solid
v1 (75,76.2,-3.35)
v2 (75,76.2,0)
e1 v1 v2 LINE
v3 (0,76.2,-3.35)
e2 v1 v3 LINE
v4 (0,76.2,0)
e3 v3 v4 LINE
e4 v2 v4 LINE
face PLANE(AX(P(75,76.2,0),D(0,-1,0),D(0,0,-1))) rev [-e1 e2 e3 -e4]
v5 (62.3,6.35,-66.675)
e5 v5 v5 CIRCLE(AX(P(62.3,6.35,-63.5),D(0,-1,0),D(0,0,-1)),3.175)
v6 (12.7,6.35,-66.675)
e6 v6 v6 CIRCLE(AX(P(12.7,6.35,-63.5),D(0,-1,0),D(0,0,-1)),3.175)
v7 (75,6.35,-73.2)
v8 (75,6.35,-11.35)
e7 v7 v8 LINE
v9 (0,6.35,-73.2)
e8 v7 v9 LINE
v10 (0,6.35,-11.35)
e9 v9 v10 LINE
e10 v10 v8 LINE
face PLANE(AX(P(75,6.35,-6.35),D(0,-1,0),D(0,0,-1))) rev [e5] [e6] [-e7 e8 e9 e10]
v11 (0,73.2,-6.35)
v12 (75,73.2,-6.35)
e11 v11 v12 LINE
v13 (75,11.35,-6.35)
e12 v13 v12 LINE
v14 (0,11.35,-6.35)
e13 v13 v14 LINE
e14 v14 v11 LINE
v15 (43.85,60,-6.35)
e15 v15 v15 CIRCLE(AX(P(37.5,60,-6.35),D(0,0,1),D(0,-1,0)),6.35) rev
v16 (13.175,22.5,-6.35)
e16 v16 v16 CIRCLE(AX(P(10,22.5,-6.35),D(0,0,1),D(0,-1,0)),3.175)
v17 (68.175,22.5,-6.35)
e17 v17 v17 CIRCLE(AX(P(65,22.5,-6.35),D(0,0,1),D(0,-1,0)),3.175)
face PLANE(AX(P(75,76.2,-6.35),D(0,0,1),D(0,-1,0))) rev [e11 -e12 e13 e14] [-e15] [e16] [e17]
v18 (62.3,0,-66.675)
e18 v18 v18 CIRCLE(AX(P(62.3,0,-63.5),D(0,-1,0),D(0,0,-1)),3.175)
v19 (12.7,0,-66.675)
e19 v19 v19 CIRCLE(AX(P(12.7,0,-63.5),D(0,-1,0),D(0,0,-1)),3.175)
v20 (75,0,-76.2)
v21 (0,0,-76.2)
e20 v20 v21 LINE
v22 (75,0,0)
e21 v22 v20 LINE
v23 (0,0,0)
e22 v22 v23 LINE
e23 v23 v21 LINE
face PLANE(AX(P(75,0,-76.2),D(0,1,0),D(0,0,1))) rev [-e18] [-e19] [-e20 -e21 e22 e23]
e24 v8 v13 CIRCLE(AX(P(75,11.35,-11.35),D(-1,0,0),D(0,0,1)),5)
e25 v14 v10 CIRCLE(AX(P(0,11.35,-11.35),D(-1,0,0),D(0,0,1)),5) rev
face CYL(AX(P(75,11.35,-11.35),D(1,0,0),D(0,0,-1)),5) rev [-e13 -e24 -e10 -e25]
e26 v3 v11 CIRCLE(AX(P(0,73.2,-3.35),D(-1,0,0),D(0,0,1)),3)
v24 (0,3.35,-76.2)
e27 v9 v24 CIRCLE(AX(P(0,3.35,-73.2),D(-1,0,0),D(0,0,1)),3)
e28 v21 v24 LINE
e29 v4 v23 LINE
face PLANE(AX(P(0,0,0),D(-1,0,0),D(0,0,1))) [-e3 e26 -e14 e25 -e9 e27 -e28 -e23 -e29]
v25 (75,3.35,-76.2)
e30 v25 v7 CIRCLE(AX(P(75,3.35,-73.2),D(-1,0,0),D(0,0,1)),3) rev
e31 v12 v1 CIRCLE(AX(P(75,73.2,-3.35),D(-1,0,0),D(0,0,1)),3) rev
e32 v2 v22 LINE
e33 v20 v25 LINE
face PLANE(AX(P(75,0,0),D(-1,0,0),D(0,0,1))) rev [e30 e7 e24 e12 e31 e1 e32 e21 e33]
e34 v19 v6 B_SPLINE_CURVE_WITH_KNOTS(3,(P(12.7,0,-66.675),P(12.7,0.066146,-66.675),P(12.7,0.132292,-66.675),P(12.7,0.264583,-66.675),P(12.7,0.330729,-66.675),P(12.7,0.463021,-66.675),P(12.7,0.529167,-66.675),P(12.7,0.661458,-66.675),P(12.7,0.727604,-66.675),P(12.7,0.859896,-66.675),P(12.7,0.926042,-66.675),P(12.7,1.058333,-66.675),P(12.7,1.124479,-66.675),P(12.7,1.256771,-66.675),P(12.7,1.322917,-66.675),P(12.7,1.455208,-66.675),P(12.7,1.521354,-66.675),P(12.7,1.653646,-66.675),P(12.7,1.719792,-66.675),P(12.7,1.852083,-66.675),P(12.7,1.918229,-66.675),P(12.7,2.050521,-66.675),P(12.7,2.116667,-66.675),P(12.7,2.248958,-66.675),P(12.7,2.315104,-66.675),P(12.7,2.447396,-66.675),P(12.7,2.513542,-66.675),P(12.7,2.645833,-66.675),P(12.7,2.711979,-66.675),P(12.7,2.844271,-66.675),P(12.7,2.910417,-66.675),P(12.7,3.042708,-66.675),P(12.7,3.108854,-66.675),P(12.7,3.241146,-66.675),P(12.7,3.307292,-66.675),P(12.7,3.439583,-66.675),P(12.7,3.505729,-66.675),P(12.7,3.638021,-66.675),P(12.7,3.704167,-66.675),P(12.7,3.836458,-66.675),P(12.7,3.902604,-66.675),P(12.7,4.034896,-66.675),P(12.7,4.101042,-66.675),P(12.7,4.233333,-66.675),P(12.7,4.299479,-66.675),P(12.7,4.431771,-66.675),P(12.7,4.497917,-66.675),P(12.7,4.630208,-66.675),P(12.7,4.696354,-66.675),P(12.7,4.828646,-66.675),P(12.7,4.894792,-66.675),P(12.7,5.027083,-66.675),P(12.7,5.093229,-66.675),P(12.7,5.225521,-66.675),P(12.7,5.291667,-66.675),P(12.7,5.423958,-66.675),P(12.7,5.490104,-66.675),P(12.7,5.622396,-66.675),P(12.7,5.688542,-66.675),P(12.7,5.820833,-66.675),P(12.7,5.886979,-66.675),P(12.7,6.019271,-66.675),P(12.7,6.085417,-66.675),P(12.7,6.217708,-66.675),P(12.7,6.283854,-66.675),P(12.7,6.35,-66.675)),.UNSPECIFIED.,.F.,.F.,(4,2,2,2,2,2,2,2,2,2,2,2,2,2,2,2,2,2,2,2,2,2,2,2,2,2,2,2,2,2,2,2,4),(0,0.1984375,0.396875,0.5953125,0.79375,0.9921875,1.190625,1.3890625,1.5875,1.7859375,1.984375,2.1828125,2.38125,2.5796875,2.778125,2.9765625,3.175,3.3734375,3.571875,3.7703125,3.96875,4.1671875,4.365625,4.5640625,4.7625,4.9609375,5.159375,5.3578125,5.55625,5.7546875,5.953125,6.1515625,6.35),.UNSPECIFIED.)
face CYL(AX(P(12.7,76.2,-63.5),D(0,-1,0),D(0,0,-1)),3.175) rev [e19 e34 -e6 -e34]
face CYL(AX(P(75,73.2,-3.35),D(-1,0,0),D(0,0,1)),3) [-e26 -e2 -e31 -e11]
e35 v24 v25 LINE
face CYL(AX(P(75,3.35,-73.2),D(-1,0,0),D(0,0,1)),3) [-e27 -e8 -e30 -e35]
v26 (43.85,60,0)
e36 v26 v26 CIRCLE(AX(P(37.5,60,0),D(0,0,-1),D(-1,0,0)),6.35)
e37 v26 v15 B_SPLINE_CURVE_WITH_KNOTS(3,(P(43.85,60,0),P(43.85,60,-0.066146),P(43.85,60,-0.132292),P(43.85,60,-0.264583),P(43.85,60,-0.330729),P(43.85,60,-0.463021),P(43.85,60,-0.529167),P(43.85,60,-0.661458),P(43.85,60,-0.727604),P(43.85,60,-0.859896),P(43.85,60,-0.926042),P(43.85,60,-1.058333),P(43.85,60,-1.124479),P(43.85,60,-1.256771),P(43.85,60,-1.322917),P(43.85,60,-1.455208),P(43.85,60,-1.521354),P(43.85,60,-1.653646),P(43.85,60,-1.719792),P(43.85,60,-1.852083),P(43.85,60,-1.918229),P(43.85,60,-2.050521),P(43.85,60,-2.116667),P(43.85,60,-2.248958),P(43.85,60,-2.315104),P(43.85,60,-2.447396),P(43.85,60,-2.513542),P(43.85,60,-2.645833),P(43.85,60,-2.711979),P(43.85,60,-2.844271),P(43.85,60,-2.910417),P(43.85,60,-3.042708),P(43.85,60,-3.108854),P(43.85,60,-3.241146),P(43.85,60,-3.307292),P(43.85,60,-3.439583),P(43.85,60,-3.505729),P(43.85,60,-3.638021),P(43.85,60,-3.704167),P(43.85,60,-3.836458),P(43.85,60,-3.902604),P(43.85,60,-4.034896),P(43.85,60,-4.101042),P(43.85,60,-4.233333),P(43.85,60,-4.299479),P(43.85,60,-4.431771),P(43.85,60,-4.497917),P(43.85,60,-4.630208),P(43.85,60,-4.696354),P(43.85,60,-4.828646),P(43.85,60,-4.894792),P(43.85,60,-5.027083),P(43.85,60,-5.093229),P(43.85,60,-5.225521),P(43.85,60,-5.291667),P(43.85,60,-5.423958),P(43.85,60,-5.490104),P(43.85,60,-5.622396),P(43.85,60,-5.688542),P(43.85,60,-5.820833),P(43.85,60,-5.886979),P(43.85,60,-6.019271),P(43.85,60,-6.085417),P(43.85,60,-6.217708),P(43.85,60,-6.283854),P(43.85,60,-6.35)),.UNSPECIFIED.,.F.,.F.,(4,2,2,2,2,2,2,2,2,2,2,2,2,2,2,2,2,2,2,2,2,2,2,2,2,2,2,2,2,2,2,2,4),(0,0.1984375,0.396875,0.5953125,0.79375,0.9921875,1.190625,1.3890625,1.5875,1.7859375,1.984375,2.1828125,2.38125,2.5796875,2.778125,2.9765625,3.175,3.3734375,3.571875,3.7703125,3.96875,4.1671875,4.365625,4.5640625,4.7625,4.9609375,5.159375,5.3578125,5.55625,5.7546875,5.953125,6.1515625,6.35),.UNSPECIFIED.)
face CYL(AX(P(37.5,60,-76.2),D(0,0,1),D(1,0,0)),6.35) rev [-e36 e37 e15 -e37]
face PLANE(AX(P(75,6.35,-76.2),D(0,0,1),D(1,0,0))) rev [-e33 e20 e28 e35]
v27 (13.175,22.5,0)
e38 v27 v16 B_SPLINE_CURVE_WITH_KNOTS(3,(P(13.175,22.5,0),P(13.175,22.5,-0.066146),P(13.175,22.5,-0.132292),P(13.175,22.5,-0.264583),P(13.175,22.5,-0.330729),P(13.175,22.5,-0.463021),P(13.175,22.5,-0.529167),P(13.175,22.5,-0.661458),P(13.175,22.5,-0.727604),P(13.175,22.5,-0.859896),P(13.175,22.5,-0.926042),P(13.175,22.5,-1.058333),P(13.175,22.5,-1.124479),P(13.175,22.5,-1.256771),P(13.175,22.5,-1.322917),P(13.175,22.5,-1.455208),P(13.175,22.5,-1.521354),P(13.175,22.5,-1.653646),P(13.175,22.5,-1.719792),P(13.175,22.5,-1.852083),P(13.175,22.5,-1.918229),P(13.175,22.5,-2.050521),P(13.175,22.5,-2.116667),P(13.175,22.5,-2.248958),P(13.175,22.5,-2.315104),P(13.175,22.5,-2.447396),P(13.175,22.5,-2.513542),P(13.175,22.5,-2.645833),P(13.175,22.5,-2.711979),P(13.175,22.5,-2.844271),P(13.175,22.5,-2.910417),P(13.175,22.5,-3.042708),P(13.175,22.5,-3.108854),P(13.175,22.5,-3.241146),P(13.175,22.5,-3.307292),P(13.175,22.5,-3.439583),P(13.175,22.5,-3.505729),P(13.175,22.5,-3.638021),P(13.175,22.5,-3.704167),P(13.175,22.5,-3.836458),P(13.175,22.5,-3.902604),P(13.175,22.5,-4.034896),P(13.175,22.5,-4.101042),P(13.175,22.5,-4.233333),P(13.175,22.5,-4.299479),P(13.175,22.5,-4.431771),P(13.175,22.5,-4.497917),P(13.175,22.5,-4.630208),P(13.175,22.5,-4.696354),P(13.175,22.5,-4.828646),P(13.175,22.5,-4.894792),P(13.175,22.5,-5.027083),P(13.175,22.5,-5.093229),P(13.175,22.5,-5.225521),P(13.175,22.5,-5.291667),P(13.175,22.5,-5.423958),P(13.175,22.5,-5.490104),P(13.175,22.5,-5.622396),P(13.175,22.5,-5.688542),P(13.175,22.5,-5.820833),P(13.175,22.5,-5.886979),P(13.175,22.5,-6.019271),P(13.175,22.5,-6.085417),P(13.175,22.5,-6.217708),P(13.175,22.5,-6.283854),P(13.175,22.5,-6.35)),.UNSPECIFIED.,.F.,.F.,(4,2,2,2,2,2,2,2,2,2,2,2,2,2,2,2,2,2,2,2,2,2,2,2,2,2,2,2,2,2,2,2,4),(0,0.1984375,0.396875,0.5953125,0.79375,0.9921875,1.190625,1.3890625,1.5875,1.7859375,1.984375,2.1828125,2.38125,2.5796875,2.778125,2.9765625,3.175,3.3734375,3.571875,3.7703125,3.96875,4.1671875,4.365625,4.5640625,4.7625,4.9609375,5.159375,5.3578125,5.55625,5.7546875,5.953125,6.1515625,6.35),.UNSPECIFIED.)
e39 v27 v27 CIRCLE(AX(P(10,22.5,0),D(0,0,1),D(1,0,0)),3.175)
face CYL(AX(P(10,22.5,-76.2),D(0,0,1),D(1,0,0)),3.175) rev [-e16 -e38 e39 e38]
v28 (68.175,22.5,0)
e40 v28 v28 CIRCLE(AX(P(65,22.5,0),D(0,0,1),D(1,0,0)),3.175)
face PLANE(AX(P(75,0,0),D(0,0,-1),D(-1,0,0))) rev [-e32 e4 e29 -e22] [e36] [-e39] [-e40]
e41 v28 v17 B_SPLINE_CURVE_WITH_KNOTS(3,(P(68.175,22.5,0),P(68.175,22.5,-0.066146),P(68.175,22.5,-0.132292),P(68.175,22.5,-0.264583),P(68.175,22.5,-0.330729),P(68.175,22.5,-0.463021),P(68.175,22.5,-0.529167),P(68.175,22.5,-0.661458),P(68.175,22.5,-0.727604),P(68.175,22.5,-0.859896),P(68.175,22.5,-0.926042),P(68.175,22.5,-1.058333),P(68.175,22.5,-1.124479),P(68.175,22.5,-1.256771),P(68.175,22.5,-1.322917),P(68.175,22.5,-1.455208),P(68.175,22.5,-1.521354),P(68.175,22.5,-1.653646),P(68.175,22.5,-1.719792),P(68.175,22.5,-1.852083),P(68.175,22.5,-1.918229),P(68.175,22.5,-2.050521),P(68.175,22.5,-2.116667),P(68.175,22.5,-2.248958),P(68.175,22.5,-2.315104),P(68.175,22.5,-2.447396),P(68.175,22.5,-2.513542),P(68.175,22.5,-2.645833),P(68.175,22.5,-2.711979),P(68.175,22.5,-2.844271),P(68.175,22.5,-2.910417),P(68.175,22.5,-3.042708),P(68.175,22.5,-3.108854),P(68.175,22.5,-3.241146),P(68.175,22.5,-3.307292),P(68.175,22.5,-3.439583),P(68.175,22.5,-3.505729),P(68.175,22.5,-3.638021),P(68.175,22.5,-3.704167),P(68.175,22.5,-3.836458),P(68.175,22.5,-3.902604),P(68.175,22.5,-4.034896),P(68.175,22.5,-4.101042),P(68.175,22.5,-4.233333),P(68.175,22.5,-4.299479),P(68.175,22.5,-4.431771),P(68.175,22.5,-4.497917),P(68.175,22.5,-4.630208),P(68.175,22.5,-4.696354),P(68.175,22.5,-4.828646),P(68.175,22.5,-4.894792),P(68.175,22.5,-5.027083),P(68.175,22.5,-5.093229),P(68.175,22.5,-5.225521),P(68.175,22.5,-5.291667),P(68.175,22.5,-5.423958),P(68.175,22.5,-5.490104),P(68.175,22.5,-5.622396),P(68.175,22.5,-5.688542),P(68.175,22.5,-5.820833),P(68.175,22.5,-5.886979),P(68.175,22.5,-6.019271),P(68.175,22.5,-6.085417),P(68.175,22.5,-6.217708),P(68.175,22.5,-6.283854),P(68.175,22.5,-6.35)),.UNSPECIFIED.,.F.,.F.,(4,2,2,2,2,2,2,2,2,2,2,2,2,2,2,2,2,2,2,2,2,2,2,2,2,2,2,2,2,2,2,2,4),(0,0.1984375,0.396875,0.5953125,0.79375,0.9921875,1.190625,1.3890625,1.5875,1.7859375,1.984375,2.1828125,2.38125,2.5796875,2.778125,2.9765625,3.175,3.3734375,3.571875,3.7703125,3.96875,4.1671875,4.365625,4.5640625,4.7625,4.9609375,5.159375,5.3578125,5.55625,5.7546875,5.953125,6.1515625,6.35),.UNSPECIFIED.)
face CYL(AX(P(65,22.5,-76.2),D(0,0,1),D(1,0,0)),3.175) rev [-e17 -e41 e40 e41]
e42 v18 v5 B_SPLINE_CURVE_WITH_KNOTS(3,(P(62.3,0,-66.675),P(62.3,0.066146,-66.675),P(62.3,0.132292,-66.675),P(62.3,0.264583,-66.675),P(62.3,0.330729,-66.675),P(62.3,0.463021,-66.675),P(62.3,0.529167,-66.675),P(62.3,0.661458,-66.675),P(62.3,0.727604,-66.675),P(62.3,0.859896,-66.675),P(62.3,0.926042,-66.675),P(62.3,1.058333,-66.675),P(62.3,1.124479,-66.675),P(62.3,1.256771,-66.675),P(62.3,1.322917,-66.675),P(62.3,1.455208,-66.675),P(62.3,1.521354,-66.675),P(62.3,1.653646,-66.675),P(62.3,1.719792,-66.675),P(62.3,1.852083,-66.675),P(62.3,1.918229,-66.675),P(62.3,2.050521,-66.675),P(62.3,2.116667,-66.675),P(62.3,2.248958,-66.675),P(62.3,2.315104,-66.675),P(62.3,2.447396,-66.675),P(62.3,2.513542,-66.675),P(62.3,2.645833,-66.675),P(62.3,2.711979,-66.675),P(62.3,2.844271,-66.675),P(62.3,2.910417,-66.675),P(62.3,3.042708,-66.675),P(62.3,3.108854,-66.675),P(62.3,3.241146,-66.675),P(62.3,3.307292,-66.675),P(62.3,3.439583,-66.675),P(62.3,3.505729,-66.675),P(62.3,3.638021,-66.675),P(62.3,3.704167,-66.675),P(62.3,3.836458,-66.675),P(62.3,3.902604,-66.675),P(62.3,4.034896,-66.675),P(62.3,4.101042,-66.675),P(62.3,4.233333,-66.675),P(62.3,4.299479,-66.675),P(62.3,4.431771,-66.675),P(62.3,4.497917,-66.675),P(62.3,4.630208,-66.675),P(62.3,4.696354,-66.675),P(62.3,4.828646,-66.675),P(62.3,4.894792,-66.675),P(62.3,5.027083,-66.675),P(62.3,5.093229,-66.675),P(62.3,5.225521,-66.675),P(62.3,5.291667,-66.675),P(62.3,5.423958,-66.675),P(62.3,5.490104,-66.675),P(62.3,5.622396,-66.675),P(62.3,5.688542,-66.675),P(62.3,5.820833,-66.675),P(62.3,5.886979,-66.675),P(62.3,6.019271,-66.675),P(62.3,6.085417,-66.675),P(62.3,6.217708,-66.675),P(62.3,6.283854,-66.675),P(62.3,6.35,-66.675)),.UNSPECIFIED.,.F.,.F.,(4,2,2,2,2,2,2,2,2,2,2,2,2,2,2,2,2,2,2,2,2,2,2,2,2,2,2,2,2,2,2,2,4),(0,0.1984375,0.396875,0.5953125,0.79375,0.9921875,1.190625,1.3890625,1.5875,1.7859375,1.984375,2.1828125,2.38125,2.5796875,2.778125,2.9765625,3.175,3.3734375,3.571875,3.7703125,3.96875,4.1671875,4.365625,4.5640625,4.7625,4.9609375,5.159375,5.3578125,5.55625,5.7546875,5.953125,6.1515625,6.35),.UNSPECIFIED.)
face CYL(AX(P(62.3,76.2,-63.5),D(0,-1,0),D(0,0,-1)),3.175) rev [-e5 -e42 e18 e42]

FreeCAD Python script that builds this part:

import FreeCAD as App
import Part
import Sketcher
from FreeCAD import Vector
Q = App.Units.Quantity


def edges_at(feature, points):
    """Names of the edges that pass closest to the given points."""
    edges = feature.Shape.Edges
    near = lambda p: min(range(len(edges)), key=lambda i: edges[i].distToShape(Part.Vertex(*p))[0])
    return sorted({f"Edge{near(p) + 1}" for p in points})


def add_polygon(sketch, points):
    """Adds a closed chain of lines whose ends are joined by coincident constraints."""
    first, n = sketch.GeometryCount, len(points)
    for a, b in zip(points, points[1:] + points[:1]):
        sketch.addGeometry(Part.LineSegment(App.Vector(*a, 0), App.Vector(*b, 0)), False)
    for i in range(n):
        sketch.addConstraint(Sketcher.Constraint("Coincident", first + i, 2, first + (i + 1) % n, 1))

doc = App.newDocument("Part")
params = doc.addObject("Spreadsheet::Sheet", "Params")
for row, (alias, value) in enumerate([
    ("sketch1_width", "3 in"),
    ("sketch1_width2", "0.25 in"),
    ("pad1_length", "75 mm"),
    ("fillet_radius", "3 mm"),
    ("fillet2_radius", "5 mm"),
    ("sketch2_diameter", "0.5 in"),
    ("sketch3_diameter", "0.25 in"),
    ("sketch4_diameter", "0.25 in"),
], start=1):
    params.set(f"A{row}", alias)
    params.set(f"B{row}", "=" + value)
    params.setAlias(f"B{row}", alias)

body = doc.addObject("PartDesign::Body", "Body")

sketch1 = body.newObject("Sketcher::SketchObject", "Sketch")
sketch1.AttachmentSupport = (doc.getObject("YZ_Plane"), [""])
sketch1.MapMode = "FlatFace"
add_polygon(sketch1, [(76, 0), (0, 0), (0, -76), (6, -76), (6, -6), (76, -6)])
sketch1.addConstraint([
    Sketcher.Constraint("Horizontal", 0),
    Sketcher.Constraint("Vertical", 1),
    Sketcher.Constraint("Horizontal", 2),
    Sketcher.Constraint("Vertical", 3),
    Sketcher.Constraint("Horizontal", 4),
    Sketcher.Constraint("Vertical", 5),
    Sketcher.Constraint("Coincident", 0, 2, -1, 1),
    Sketcher.Constraint("Equal", 0, 1),
    Sketcher.Constraint("Equal", 4, 3),
    Sketcher.Constraint("DistanceX", 0, 2, 0, 1, Q("3 in")),
    Sketcher.Constraint("DistanceX", 2, 1, 2, 2, Q("0.25 in")),
])
sketch1.setExpression("Constraints[15]", "Params.sketch1_width")
sketch1.setExpression("Constraints[16]", "Params.sketch1_width2")
pad1 = body.newObject("PartDesign::Pad", "Pad")
pad1.Profile = sketch1
pad1.setExpression("Length", "Params.pad1_length")
doc.recompute()

fillet = body.newObject("PartDesign::Fillet", "Fillet")
fillet.Base = (pad1, edges_at(pad1, [(37.5, 76.2, -6.35), (37.5, 6.35, -76.2)]))
fillet.setExpression("Radius", "Params.fillet_radius")
doc.recompute()

fillet2 = body.newObject("PartDesign::Fillet", "Fillet001")
fillet2.Base = (fillet, edges_at(fillet, [(37.5, 6.35, -6.35)]))
fillet2.setExpression("Radius", "Params.fillet2_radius")

sketch2 = body.newObject("Sketcher::SketchObject", "Sketch001")
sketch2.AttachmentSupport = (doc.getObject("XY_Plane"), [""])
sketch2.MapMode = "FlatFace"
sketch2.addGeometry(Part.Circle(Vector(38, 60, 0), Vector(0, 0, 1), 6), False)
sketch2.addConstraint([
    Sketcher.Constraint("Diameter", 0, Q("0.5 in")),
    Sketcher.Constraint("DistanceX", -1, 1, 0, 3, 37.5),
    Sketcher.Constraint("DistanceY", -1, 1, 0, 3, 60.0),
])
sketch2.setExpression("Constraints[0]", "Params.sketch2_diameter")
pocket1 = body.newObject("PartDesign::Pocket", "Pocket")
pocket1.Profile = sketch2
pocket1.Type = "ThroughAll"

sketch3 = body.newObject("Sketcher::SketchObject", "Sketch002")
sketch3.AttachmentSupport = (doc.getObject("XY_Plane"), [""])
sketch3.MapMode = "FlatFace"
sketch3.addGeometry([
    Part.Circle(Vector(10, 22.5, 0), Vector(0, 0, 1), 3.2),
    Part.Circle(Vector(65, 22.5, 0), Vector(0, 0, 1), 3.2),
], False)
sketch3.addConstraint([
    Sketcher.Constraint("Equal", 0, 1),
    Sketcher.Constraint("Horizontal", 0, 3, 1, 3),
    Sketcher.Constraint("Diameter", 0, Q("0.25 in")),
    Sketcher.Constraint("DistanceX", -1, 1, 0, 3, 10.0),
    Sketcher.Constraint("DistanceY", -1, 1, 0, 3, 22.5),
    Sketcher.Constraint("DistanceX", -1, 1, 1, 3, 65.0),
])
sketch3.setExpression("Constraints[2]", "Params.sketch3_diameter")
pocket2 = body.newObject("PartDesign::Pocket", "Pocket001")
pocket2.Profile = sketch3
pocket2.Type = "ThroughAll"

sketch4 = body.newObject("Sketcher::SketchObject", "Sketch003")
sketch4.AttachmentSupport = (doc.getObject("XZ_Plane"), [""])
sketch4.MapMode = "FlatFace"
sketch4.addGeometry([
    Part.Circle(Vector(12.7, -63.5, 0), Vector(0, 0, 1), 3.2),
    Part.Circle(Vector(62.3, -63.5, 0), Vector(0, 0, 1), 3.2),
], False)
sketch4.addConstraint([
    Sketcher.Constraint("Equal", 0, 1),
    Sketcher.Constraint("Horizontal", 0, 3, 1, 3),
    Sketcher.Constraint("Diameter", 0, Q("0.25 in")),
    Sketcher.Constraint("DistanceX", -1, 1, 0, 3, Q("0.5 in")),
    Sketcher.Constraint("DistanceY", 0, 3, -1, 1, Q("2.5 in")),
    Sketcher.Constraint("DistanceX", -1, 1, 1, 3, 62.3),
])
sketch4.setExpression("Constraints[2]", "Params.sketch4_diameter")
pocket3 = body.newObject("PartDesign::Pocket", "Pocket002")
pocket3.Profile = sketch4
pocket3.Type = "ThroughAll"

doc.recompute()
